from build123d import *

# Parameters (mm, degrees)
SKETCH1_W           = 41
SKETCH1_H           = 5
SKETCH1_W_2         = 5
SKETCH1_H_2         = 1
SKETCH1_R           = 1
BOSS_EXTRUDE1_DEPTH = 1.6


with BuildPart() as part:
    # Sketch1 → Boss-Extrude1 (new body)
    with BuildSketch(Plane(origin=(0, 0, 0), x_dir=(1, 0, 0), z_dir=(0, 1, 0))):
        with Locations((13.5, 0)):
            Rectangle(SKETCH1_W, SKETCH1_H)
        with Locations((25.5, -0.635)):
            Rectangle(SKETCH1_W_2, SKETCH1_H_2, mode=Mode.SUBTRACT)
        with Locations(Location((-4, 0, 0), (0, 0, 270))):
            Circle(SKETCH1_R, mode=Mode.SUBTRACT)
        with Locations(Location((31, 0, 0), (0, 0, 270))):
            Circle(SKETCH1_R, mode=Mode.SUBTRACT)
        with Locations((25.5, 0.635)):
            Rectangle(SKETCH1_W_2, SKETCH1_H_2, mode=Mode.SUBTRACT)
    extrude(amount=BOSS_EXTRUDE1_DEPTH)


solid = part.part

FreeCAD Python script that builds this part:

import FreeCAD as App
import Part
import Sketcher
Q = App.Units.Quantity


def add_polygon(sketch, points):
    """Adds a closed chain of lines whose ends are joined by coincident constraints."""
    first, n = sketch.GeometryCount, len(points)
    for a, b in zip(points, points[1:] + points[:1]):
        sketch.addGeometry(Part.LineSegment(App.Vector(*a, 0), App.Vector(*b, 0)), False)
    for i in range(n):
        sketch.addConstraint(Sketcher.Constraint("Coincident", first + i, 2, first + (i + 1) % n, 1))

doc = App.newDocument("Part")
params = doc.addObject("Spreadsheet::Sheet", "Params")
for row, (alias, value) in enumerate([
    ("sketch1_diameter", "2 mm"),
    ("sketch1_width", "41 mm"),
    ("sketch1_width2", "5 mm"),
    ("sketch1_height", "1 mm"),
    ("pad1_length", "1.6 mm"),
], start=1):
    params.set(f"A{row}", alias)
    params.set(f"B{row}", "=" + value)
    params.setAlias(f"B{row}", alias)

body = doc.addObject("PartDesign::Body", "Body")

# Sketch on XZ plane
sketch1 = body.newObject("Sketcher::SketchObject", "Sketch")
sketch1.AttachmentSupport = (doc.getObject("XZ_Plane"), [""])
sketch1.MapMode = "FlatFace"
add_polygon(sketch1, [(-7, -2.5), (-7, 2.5), (34, 2.5), (34, -2.5)])  # lines 0-3
add_polygon(sketch1, [(28, 1.1), (23, 1.1), (23, 0.1), (28, 0.1)])  # lines 4-7
sketch1.addGeometry(Part.Circle(App.Vector(-4, 0, 0), App.Vector(0, 0, 1), 1), False)  # 8
sketch1.addGeometry(Part.Circle(App.Vector(31, 0, 0), App.Vector(0, 0, 1), 1), False)  # 9
add_polygon(sketch1, [(28, -0.1), (23, -0.1), (23, -1.1), (28, -1.1)])  # lines 10-13
sketch1.addConstraint(Sketcher.Constraint("Vertical", 0))
sketch1.addConstraint(Sketcher.Constraint("Horizontal", 1))
sketch1.addConstraint(Sketcher.Constraint("Vertical", 2))
sketch1.addConstraint(Sketcher.Constraint("Horizontal", 3))
sketch1.addConstraint(Sketcher.Constraint("Horizontal", 4))
sketch1.addConstraint(Sketcher.Constraint("Vertical", 5))
sketch1.addConstraint(Sketcher.Constraint("Horizontal", 6))
sketch1.addConstraint(Sketcher.Constraint("Vertical", 7))
sketch1.addConstraint(Sketcher.Constraint("Horizontal", 10))
sketch1.addConstraint(Sketcher.Constraint("Vertical", 11))
sketch1.addConstraint(Sketcher.Constraint("Horizontal", 12))
sketch1.addConstraint(Sketcher.Constraint("Vertical", 13))
sketch1.addConstraint(Sketcher.Constraint("Equal", 8, 9))
sketch1.addConstraint(Sketcher.Constraint("Symmetric", 5, 2, 10, 2, -1))
sketch1.addConstraint(Sketcher.Constraint("Symmetric", 7, 2, 12, 2, -1))
sketch1.addConstraint(Sketcher.Constraint("PointOnObject", 8, 3, -1))
sketch1.addConstraint(Sketcher.Constraint("PointOnObject", 9, 3, -1))
sketch1.addConstraint(Sketcher.Constraint("Equal", 12, 0))
sketch1.addConstraint(Sketcher.Constraint("Diameter", 8, Q("2 mm")))
sketch1.addConstraint(Sketcher.Constraint("DistanceX", 1, 1, 1, 2, Q("41 mm")))
sketch1.addConstraint(Sketcher.Constraint("DistanceX", 4, 2, 4, 1, Q("5 mm")))
sketch1.addConstraint(Sketcher.Constraint("DistanceY", 5, 2, 5, 1, Q("1 mm")))
sketch1.addConstraint(Sketcher.Constraint("DistanceX", 8, 3, -1, 1, Q("4 mm")))
sketch1.addConstraint(Sketcher.Constraint("DistanceX", -1, 1, 9, 3, Q("31 mm")))
sketch1.addConstraint(Sketcher.Constraint("DistanceX", 0, 2, -1, 1, Q("7 mm")))
sketch1.addConstraint(Sketcher.Constraint("DistanceX", -1, 1, 4, 2, Q("23 mm")))
sketch1.addConstraint(Sketcher.Constraint("DistanceY", -1, 1, 0, 2, Q("2.5 mm")))
sketch1.addConstraint(Sketcher.Constraint("DistanceY", 10, 2, 5, 2, Q("0.27 mm")))
sketch1.setExpression("Constraints[30]", "Params.sketch1_diameter")
sketch1.setExpression("Constraints[31]", "Params.sketch1_width")
sketch1.setExpression("Constraints[32]", "Params.sketch1_width2")
sketch1.setExpression("Constraints[33]", "Params.sketch1_height")
pad1 = body.newObject("PartDesign::Pad", "Pad")
pad1.Profile = sketch1
pad1.setExpression("Length", "Params.pad1_length")
pad1.Reversed = True

doc.recompute()
